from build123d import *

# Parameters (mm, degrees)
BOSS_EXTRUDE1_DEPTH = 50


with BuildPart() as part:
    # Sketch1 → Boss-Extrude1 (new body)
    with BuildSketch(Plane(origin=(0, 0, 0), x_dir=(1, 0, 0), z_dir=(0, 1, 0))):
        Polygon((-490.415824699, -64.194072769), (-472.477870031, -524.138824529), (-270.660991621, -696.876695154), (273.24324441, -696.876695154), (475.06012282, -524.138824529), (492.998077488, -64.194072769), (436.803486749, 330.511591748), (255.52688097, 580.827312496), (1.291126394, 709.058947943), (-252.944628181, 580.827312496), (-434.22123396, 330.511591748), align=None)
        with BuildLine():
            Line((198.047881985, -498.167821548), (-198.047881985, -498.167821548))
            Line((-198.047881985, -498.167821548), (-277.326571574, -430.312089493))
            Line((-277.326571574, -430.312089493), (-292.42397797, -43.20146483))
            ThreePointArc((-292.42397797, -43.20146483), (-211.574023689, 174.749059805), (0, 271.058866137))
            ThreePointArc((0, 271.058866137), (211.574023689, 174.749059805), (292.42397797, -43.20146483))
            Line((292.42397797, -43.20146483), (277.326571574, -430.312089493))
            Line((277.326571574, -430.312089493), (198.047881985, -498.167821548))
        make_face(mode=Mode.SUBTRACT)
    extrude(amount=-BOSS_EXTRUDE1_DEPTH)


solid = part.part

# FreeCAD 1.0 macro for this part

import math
import FreeCAD as App
import Part
import Sketcher

V = App.Vector


def add_polygon(sketch, points):
    """Adds a closed chain of lines whose ends are joined by coincident constraints."""
    first, n = sketch.GeometryCount, len(points)
    for a, b in zip(points, points[1:] + points[:1]):
        sketch.addGeometry(Part.LineSegment(App.Vector(*a, 0), App.Vector(*b, 0)), False)
    for i in range(n):
        sketch.addConstraint(Sketcher.Constraint("Coincident", first + i, 2, first + (i + 1) % n, 1))

doc = App.newDocument("Part")
params = doc.addObject("Spreadsheet::Sheet", "Params")
for row, (alias, value) in enumerate([
    ("pad1_length", "50 mm"),
], start=1):
    params.set(f"A{row}", alias)
    params.set(f"B{row}", "=" + value)
    params.setAlias(f"B{row}", alias)

body = doc.addObject("PartDesign::Body", "Body")

sketch1 = doc.addObject("Sketcher::SketchObject", "Sketch")
body.addObject(sketch1)
sketch1.AttachmentSupport = (doc.XZ_Plane, [""])
sketch1.MapMode = "FlatFace"
add_polygon(sketch1, [(-490.415825, 64.194073), (-472.47787, 524.138825), (-270.660992, 696.876695), (273.243244, 696.876695), (475.060123, 524.138825), (492.998077, 64.194073), (436.803487, -330.511592), (255.526881, -580.827312), (1.291126, -709.058948), (-252.944628, -580.827312), (-434.221234, -330.511592)])
sketch1.addGeometry(Part.LineSegment(V(277.326572, 430.312089, 0), V(198.047882, 498.167822, 0)), False)
sketch1.addGeometry(Part.LineSegment(V(198.047882, 498.167822, 0), V(-198.047882, 498.167822, 0)), False)
sketch1.addGeometry(Part.LineSegment(V(-198.047882, 498.167822, 0), V(-277.326572, 430.312089, 0)), False)
sketch1.addGeometry(Part.LineSegment(V(-277.326572, 430.312089, 0), V(-292.423978, 43.201465, 0)), False)
sketch1.addGeometry(Part.ArcOfCircle(Part.Circle(V(9.977253, 31.407745, 0), V(0, 0, 1), 302.631123), math.radians(177.766583), math.radians(268.11071)), False)
sketch1.addGeometry(Part.ArcOfCircle(Part.Circle(V(-9.977253, 31.407745, 0), V(0, 0, 1), 302.631123), math.radians(-88.11071), math.radians(2.233417)), False)
sketch1.addGeometry(Part.LineSegment(V(292.423978, 43.201465, 0), V(277.326572, 430.312089, 0)), False)
sketch1.addConstraint([
    Sketcher.Constraint("Coincident", 11, 2, 12, 1),
    Sketcher.Constraint("Coincident", 12, 2, 13, 1),
    Sketcher.Constraint("Coincident", 13, 2, 14, 1),
    Sketcher.Constraint("Tangent", 14, 2, 15, 1),
    Sketcher.Constraint("Coincident", 15, 2, 16, 1),
    Sketcher.Constraint("Tangent", 16, 2, 17, 1),
    Sketcher.Constraint("Coincident", 17, 2, 11, 1),
    Sketcher.Constraint("Horizontal", 2),
    Sketcher.Constraint("Horizontal", 12),
    Sketcher.Constraint("Equal", 15, 16),
    Sketcher.Constraint("Symmetric", 15, 3, 16, 3, -2),
    Sketcher.Constraint("Symmetric", 13, 2, 17, 2, -2),
    Sketcher.Constraint("Parallel", 3, 11),
    Sketcher.Constraint("Parallel", 1, 13),
    Sketcher.Constraint("Parallel", 0, 14),
    Sketcher.Constraint("Parallel", 4, 17),
    Sketcher.Constraint("Horizontal", 0, 2, 3, 2),
    Sketcher.Constraint("Horizontal", 6, 2, 8, 2),
    Sketcher.Constraint("Horizontal", 5, 2, 9, 2),
    Sketcher.Constraint("Horizontal", 4, 2, 10, 2),
    Sketcher.Constraint("Equal", 1, 3),
    Sketcher.Constraint("Equal", 7, 8),
    Sketcher.Constraint("Equal", 6, 9),
    Sketcher.Constraint("Equal", 5, 10),
    Sketcher.Constraint("Radius", 15, 302.631123),
    Sketcher.Constraint("DistanceX", 0, 2, 13, 2, 195.151298),
    Sketcher.Constraint("DistanceX", 16, 2, 4, 2, 200.5741),
    Sketcher.Constraint("Distance", 0, 460.294411),
    Sketcher.Constraint("Distance", 1, 265.64718),
    Sketcher.Constraint("Distance", 11, 104.35282),
    Sketcher.Constraint("DistanceX", 2, 1, 2, 2, 543.904236),
    Sketcher.Constraint("DistanceX", 12, 2, 12, 1, 396.095764),
    Sketcher.Constraint("DistanceX", 0, 2, -1, 1, 472.47787),
    Sketcher.Constraint("DistanceY", 5, 2, -1, 1, 330.511592),
    Sketcher.Constraint("DistanceX", -1, 1, 6, 2, 255.526881),
    Sketcher.Constraint("DistanceY", -1, 1, 11, 2, 498.167822),
    Sketcher.Constraint("DistanceY", 16, 3, 0, 2, 492.73108),
    Sketcher.Constraint("DistanceX", 1, 2, 16, 3, 260.683739),
    Sketcher.Constraint("DistanceX", 5, 2, 4, 2, 56.194591),
    Sketcher.Constraint("DistanceY", 6, 2, 5, 2, 250.315721),
    Sketcher.Constraint("DistanceY", 7, 2, 4, 2, 773.253021),
])
pad1 = doc.addObject("PartDesign::Pad", "Pad")
body.addObject(pad1)
pad1.Profile = sketch1
pad1.setExpression("Length", "Params.pad1_length")

doc.recompute()
